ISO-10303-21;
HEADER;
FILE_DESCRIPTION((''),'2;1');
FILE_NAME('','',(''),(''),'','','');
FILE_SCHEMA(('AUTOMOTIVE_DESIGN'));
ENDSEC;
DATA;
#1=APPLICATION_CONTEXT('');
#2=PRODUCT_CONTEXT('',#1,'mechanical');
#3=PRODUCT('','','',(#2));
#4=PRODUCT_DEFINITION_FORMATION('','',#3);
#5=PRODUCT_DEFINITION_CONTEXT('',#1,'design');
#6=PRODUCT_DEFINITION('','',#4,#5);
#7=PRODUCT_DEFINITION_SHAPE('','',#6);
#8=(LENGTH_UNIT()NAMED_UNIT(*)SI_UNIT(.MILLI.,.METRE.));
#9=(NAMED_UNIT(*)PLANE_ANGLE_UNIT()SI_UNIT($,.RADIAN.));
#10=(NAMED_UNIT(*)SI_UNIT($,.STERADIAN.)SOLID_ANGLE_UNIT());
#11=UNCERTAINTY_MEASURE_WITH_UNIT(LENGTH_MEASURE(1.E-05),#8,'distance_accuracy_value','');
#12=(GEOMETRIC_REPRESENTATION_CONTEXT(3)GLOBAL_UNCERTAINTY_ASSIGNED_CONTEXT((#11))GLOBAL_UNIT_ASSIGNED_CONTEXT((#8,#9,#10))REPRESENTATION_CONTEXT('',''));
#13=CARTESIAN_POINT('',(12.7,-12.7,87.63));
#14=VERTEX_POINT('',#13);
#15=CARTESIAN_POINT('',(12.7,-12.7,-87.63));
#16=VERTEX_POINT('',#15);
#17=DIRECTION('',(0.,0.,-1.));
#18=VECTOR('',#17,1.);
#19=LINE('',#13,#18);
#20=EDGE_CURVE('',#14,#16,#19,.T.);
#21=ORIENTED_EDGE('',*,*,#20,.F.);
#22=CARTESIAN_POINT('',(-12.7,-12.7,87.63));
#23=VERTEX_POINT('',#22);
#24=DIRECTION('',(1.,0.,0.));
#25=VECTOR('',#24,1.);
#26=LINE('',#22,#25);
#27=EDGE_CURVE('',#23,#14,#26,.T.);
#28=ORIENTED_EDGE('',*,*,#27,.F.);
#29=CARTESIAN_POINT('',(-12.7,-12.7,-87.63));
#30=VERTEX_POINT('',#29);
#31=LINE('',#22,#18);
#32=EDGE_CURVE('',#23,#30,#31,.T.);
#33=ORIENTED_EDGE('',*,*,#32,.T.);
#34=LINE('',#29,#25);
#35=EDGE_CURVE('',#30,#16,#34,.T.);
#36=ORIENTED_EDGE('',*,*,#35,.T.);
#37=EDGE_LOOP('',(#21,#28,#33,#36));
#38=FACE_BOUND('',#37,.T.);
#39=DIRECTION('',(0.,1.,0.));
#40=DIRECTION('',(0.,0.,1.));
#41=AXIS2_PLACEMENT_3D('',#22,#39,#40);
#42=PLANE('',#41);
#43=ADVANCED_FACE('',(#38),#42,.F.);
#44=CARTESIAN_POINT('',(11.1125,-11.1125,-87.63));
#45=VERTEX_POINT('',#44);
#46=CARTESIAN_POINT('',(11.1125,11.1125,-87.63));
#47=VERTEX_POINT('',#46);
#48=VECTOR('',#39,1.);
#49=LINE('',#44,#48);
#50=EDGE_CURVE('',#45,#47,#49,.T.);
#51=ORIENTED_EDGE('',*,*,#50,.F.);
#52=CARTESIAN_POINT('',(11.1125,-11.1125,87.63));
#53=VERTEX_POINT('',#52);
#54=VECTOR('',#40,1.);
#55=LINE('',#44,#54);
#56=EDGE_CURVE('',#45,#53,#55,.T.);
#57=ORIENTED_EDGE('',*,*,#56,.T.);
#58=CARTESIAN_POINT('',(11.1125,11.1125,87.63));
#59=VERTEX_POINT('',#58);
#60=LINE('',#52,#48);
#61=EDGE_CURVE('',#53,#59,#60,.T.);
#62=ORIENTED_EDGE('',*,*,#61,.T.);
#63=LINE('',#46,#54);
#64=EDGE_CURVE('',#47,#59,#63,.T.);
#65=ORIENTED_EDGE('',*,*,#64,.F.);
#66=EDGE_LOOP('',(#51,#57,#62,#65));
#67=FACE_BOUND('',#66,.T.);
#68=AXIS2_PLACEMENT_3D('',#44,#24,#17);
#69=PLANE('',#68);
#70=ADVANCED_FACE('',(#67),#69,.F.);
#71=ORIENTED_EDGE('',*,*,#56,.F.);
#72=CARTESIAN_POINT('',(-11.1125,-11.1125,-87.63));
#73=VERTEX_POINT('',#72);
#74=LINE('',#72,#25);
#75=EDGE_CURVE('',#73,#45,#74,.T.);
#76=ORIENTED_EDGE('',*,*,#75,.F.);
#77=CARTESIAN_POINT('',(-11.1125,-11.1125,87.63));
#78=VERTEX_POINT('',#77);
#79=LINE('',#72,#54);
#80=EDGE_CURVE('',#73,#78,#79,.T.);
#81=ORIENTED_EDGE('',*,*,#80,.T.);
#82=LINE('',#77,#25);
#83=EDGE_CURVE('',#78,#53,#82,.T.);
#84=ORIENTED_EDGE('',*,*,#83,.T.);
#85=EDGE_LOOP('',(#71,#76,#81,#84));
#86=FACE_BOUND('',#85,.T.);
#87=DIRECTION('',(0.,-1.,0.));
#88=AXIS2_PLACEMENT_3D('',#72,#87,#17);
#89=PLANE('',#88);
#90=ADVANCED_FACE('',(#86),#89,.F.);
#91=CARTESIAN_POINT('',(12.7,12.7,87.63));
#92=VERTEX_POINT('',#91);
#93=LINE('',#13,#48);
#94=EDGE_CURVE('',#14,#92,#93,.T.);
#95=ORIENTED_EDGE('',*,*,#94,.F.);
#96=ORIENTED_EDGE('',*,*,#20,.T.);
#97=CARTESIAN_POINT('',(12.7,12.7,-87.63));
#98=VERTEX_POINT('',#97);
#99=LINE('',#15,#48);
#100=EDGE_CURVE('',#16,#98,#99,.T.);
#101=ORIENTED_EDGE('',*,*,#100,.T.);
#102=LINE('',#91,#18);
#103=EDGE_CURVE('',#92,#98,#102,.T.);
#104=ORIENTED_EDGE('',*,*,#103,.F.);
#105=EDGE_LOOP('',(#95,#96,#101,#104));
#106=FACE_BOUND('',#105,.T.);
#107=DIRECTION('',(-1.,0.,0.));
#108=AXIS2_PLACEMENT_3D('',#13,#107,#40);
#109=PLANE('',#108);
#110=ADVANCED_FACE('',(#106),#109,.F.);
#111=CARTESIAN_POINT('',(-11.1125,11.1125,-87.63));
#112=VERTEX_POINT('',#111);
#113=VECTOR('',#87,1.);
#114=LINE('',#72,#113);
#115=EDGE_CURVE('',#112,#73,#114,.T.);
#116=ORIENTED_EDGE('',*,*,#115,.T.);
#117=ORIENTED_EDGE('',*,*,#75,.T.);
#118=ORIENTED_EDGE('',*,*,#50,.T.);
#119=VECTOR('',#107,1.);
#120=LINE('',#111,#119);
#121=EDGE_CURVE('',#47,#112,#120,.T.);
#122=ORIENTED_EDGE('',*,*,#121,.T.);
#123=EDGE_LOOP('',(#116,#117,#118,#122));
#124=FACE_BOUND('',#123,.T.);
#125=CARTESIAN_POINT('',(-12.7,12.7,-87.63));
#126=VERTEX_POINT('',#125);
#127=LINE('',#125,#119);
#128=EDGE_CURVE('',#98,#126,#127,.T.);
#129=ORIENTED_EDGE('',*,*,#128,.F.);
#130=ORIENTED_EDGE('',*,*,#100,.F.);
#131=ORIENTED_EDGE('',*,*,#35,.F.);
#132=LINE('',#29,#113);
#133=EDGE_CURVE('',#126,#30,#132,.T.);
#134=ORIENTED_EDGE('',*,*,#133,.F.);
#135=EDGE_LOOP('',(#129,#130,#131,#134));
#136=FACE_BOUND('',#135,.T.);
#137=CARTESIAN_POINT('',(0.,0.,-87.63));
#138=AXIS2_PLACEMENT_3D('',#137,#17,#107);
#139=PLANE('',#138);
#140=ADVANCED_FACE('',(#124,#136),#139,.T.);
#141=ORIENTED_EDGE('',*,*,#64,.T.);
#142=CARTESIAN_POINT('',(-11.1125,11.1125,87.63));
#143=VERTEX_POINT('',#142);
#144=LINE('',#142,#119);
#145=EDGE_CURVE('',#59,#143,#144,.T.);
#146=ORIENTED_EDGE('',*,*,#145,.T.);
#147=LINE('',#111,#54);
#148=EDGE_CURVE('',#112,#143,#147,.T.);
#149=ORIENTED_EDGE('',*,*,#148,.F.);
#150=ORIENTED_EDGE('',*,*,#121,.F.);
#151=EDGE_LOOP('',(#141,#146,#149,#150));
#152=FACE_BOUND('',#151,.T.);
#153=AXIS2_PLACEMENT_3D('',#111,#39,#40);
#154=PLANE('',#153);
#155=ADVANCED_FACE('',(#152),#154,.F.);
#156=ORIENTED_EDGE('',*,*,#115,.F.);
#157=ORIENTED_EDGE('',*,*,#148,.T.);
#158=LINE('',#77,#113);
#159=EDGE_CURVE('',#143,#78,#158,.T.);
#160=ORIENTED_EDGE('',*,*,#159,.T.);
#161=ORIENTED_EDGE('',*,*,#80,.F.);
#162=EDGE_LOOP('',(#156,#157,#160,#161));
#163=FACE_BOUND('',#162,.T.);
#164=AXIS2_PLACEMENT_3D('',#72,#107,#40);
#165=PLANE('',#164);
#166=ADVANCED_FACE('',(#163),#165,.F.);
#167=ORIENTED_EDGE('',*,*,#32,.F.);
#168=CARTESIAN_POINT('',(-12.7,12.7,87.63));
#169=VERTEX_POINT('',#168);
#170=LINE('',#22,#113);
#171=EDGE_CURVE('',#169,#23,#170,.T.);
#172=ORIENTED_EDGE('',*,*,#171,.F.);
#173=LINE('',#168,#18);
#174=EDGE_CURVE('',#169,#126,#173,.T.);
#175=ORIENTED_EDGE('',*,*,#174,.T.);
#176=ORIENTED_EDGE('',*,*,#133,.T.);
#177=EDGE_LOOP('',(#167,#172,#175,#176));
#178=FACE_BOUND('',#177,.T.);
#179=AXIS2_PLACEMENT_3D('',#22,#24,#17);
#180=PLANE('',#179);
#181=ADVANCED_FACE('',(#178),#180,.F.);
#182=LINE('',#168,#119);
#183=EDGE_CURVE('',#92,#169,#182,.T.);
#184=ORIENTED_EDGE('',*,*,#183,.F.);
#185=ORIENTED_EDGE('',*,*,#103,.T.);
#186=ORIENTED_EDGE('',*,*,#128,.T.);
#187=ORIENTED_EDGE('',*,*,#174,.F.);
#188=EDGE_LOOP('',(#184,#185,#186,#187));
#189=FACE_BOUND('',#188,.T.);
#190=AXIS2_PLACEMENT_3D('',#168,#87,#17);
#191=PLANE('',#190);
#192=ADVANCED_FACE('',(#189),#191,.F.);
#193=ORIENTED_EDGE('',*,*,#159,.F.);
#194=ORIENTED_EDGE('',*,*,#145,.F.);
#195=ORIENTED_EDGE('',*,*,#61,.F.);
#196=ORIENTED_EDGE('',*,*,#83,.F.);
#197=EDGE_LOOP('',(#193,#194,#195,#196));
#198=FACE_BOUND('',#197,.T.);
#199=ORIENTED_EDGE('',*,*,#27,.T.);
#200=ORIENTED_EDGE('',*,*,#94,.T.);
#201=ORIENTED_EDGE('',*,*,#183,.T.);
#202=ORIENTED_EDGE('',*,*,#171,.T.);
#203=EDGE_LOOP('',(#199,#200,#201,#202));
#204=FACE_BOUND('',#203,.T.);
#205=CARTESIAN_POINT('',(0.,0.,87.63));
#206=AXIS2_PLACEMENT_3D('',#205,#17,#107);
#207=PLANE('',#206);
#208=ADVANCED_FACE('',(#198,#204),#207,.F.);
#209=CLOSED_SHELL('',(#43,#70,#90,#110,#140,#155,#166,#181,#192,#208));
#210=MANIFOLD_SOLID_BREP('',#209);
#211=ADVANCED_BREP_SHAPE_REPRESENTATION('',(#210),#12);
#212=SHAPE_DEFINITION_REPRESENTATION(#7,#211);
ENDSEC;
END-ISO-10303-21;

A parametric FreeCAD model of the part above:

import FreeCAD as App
import Part
import Sketcher

V = App.Vector
Q = App.Units.Quantity


def add_polygon(sketch, points):
    """Adds a closed chain of lines whose ends are joined by coincident constraints."""
    first, n = sketch.GeometryCount, len(points)
    for a, b in zip(points, points[1:] + points[:1]):
        sketch.addGeometry(Part.LineSegment(App.Vector(*a, 0), App.Vector(*b, 0)), False)
    for i in range(n):
        sketch.addConstraint(Sketcher.Constraint("Coincident", first + i, 2, first + (i + 1) % n, 1))

doc = App.newDocument("Part")
body = doc.addObject("PartDesign::Body", "Body")

sketch1 = body.newObject("Sketcher::SketchObject", "Sketch")
sketch1.AttachmentSupport = (doc.getObject("XY_Plane"), [""])
sketch1.MapMode = "FlatFace"
add_polygon(sketch1, [(-12.7, 12.7), (-12.7, -12.7), (12.7, -12.7), (12.7, 12.7)])
sketch1.addConstraint([
    Sketcher.Constraint("Vertical", 0),
    Sketcher.Constraint("Horizontal", 1),
    Sketcher.Constraint("Vertical", 2),
    Sketcher.Constraint("Horizontal", 3),
    Sketcher.Constraint("Symmetric", 0, 2, 2, 2, -1, 1),
    Sketcher.Constraint("Equal", 3, 0),
    Sketcher.Constraint("DistanceX", 1, 1, 1, 2, Q("1 in")),
])
pad1 = body.newObject("PartDesign::Pad", "Pad")
pad1.Profile = sketch1
pad1.Length = Q("6.9 in")
pad1.Midplane = True

sketch2 = body.newObject("Sketcher::SketchObject", "Sketch001")
sketch2.AttachmentSupport = (doc.getObject("XY_Plane"), [""])
sketch2.MapMode = "FlatFace"
sketch2.AttachmentOffset = App.Placement(V(0, 0, 3.45 * 25.4), App.Rotation())
add_polygon(sketch2, [(-11.1125, 11.1125), (-11.1125, -11.1125), (11.1125, -11.1125), (11.1125, 11.1125)])
sketch2.addConstraint([
    Sketcher.Constraint("Vertical", 0),
    Sketcher.Constraint("Horizontal", 1),
    Sketcher.Constraint("Vertical", 2),
    Sketcher.Constraint("Horizontal", 3),
    Sketcher.Constraint("Symmetric", 0, 2, 2, 2, -1, 1),
    Sketcher.Constraint("Equal", 3, 0),
    Sketcher.Constraint("DistanceX", 1, 1, 1, 2, Q("0.875 in")),
])
pocket1 = body.newObject("PartDesign::Pocket", "Pocket")
pocket1.Profile = sketch2
pocket1.Type = "ThroughAll"

doc.recompute()
